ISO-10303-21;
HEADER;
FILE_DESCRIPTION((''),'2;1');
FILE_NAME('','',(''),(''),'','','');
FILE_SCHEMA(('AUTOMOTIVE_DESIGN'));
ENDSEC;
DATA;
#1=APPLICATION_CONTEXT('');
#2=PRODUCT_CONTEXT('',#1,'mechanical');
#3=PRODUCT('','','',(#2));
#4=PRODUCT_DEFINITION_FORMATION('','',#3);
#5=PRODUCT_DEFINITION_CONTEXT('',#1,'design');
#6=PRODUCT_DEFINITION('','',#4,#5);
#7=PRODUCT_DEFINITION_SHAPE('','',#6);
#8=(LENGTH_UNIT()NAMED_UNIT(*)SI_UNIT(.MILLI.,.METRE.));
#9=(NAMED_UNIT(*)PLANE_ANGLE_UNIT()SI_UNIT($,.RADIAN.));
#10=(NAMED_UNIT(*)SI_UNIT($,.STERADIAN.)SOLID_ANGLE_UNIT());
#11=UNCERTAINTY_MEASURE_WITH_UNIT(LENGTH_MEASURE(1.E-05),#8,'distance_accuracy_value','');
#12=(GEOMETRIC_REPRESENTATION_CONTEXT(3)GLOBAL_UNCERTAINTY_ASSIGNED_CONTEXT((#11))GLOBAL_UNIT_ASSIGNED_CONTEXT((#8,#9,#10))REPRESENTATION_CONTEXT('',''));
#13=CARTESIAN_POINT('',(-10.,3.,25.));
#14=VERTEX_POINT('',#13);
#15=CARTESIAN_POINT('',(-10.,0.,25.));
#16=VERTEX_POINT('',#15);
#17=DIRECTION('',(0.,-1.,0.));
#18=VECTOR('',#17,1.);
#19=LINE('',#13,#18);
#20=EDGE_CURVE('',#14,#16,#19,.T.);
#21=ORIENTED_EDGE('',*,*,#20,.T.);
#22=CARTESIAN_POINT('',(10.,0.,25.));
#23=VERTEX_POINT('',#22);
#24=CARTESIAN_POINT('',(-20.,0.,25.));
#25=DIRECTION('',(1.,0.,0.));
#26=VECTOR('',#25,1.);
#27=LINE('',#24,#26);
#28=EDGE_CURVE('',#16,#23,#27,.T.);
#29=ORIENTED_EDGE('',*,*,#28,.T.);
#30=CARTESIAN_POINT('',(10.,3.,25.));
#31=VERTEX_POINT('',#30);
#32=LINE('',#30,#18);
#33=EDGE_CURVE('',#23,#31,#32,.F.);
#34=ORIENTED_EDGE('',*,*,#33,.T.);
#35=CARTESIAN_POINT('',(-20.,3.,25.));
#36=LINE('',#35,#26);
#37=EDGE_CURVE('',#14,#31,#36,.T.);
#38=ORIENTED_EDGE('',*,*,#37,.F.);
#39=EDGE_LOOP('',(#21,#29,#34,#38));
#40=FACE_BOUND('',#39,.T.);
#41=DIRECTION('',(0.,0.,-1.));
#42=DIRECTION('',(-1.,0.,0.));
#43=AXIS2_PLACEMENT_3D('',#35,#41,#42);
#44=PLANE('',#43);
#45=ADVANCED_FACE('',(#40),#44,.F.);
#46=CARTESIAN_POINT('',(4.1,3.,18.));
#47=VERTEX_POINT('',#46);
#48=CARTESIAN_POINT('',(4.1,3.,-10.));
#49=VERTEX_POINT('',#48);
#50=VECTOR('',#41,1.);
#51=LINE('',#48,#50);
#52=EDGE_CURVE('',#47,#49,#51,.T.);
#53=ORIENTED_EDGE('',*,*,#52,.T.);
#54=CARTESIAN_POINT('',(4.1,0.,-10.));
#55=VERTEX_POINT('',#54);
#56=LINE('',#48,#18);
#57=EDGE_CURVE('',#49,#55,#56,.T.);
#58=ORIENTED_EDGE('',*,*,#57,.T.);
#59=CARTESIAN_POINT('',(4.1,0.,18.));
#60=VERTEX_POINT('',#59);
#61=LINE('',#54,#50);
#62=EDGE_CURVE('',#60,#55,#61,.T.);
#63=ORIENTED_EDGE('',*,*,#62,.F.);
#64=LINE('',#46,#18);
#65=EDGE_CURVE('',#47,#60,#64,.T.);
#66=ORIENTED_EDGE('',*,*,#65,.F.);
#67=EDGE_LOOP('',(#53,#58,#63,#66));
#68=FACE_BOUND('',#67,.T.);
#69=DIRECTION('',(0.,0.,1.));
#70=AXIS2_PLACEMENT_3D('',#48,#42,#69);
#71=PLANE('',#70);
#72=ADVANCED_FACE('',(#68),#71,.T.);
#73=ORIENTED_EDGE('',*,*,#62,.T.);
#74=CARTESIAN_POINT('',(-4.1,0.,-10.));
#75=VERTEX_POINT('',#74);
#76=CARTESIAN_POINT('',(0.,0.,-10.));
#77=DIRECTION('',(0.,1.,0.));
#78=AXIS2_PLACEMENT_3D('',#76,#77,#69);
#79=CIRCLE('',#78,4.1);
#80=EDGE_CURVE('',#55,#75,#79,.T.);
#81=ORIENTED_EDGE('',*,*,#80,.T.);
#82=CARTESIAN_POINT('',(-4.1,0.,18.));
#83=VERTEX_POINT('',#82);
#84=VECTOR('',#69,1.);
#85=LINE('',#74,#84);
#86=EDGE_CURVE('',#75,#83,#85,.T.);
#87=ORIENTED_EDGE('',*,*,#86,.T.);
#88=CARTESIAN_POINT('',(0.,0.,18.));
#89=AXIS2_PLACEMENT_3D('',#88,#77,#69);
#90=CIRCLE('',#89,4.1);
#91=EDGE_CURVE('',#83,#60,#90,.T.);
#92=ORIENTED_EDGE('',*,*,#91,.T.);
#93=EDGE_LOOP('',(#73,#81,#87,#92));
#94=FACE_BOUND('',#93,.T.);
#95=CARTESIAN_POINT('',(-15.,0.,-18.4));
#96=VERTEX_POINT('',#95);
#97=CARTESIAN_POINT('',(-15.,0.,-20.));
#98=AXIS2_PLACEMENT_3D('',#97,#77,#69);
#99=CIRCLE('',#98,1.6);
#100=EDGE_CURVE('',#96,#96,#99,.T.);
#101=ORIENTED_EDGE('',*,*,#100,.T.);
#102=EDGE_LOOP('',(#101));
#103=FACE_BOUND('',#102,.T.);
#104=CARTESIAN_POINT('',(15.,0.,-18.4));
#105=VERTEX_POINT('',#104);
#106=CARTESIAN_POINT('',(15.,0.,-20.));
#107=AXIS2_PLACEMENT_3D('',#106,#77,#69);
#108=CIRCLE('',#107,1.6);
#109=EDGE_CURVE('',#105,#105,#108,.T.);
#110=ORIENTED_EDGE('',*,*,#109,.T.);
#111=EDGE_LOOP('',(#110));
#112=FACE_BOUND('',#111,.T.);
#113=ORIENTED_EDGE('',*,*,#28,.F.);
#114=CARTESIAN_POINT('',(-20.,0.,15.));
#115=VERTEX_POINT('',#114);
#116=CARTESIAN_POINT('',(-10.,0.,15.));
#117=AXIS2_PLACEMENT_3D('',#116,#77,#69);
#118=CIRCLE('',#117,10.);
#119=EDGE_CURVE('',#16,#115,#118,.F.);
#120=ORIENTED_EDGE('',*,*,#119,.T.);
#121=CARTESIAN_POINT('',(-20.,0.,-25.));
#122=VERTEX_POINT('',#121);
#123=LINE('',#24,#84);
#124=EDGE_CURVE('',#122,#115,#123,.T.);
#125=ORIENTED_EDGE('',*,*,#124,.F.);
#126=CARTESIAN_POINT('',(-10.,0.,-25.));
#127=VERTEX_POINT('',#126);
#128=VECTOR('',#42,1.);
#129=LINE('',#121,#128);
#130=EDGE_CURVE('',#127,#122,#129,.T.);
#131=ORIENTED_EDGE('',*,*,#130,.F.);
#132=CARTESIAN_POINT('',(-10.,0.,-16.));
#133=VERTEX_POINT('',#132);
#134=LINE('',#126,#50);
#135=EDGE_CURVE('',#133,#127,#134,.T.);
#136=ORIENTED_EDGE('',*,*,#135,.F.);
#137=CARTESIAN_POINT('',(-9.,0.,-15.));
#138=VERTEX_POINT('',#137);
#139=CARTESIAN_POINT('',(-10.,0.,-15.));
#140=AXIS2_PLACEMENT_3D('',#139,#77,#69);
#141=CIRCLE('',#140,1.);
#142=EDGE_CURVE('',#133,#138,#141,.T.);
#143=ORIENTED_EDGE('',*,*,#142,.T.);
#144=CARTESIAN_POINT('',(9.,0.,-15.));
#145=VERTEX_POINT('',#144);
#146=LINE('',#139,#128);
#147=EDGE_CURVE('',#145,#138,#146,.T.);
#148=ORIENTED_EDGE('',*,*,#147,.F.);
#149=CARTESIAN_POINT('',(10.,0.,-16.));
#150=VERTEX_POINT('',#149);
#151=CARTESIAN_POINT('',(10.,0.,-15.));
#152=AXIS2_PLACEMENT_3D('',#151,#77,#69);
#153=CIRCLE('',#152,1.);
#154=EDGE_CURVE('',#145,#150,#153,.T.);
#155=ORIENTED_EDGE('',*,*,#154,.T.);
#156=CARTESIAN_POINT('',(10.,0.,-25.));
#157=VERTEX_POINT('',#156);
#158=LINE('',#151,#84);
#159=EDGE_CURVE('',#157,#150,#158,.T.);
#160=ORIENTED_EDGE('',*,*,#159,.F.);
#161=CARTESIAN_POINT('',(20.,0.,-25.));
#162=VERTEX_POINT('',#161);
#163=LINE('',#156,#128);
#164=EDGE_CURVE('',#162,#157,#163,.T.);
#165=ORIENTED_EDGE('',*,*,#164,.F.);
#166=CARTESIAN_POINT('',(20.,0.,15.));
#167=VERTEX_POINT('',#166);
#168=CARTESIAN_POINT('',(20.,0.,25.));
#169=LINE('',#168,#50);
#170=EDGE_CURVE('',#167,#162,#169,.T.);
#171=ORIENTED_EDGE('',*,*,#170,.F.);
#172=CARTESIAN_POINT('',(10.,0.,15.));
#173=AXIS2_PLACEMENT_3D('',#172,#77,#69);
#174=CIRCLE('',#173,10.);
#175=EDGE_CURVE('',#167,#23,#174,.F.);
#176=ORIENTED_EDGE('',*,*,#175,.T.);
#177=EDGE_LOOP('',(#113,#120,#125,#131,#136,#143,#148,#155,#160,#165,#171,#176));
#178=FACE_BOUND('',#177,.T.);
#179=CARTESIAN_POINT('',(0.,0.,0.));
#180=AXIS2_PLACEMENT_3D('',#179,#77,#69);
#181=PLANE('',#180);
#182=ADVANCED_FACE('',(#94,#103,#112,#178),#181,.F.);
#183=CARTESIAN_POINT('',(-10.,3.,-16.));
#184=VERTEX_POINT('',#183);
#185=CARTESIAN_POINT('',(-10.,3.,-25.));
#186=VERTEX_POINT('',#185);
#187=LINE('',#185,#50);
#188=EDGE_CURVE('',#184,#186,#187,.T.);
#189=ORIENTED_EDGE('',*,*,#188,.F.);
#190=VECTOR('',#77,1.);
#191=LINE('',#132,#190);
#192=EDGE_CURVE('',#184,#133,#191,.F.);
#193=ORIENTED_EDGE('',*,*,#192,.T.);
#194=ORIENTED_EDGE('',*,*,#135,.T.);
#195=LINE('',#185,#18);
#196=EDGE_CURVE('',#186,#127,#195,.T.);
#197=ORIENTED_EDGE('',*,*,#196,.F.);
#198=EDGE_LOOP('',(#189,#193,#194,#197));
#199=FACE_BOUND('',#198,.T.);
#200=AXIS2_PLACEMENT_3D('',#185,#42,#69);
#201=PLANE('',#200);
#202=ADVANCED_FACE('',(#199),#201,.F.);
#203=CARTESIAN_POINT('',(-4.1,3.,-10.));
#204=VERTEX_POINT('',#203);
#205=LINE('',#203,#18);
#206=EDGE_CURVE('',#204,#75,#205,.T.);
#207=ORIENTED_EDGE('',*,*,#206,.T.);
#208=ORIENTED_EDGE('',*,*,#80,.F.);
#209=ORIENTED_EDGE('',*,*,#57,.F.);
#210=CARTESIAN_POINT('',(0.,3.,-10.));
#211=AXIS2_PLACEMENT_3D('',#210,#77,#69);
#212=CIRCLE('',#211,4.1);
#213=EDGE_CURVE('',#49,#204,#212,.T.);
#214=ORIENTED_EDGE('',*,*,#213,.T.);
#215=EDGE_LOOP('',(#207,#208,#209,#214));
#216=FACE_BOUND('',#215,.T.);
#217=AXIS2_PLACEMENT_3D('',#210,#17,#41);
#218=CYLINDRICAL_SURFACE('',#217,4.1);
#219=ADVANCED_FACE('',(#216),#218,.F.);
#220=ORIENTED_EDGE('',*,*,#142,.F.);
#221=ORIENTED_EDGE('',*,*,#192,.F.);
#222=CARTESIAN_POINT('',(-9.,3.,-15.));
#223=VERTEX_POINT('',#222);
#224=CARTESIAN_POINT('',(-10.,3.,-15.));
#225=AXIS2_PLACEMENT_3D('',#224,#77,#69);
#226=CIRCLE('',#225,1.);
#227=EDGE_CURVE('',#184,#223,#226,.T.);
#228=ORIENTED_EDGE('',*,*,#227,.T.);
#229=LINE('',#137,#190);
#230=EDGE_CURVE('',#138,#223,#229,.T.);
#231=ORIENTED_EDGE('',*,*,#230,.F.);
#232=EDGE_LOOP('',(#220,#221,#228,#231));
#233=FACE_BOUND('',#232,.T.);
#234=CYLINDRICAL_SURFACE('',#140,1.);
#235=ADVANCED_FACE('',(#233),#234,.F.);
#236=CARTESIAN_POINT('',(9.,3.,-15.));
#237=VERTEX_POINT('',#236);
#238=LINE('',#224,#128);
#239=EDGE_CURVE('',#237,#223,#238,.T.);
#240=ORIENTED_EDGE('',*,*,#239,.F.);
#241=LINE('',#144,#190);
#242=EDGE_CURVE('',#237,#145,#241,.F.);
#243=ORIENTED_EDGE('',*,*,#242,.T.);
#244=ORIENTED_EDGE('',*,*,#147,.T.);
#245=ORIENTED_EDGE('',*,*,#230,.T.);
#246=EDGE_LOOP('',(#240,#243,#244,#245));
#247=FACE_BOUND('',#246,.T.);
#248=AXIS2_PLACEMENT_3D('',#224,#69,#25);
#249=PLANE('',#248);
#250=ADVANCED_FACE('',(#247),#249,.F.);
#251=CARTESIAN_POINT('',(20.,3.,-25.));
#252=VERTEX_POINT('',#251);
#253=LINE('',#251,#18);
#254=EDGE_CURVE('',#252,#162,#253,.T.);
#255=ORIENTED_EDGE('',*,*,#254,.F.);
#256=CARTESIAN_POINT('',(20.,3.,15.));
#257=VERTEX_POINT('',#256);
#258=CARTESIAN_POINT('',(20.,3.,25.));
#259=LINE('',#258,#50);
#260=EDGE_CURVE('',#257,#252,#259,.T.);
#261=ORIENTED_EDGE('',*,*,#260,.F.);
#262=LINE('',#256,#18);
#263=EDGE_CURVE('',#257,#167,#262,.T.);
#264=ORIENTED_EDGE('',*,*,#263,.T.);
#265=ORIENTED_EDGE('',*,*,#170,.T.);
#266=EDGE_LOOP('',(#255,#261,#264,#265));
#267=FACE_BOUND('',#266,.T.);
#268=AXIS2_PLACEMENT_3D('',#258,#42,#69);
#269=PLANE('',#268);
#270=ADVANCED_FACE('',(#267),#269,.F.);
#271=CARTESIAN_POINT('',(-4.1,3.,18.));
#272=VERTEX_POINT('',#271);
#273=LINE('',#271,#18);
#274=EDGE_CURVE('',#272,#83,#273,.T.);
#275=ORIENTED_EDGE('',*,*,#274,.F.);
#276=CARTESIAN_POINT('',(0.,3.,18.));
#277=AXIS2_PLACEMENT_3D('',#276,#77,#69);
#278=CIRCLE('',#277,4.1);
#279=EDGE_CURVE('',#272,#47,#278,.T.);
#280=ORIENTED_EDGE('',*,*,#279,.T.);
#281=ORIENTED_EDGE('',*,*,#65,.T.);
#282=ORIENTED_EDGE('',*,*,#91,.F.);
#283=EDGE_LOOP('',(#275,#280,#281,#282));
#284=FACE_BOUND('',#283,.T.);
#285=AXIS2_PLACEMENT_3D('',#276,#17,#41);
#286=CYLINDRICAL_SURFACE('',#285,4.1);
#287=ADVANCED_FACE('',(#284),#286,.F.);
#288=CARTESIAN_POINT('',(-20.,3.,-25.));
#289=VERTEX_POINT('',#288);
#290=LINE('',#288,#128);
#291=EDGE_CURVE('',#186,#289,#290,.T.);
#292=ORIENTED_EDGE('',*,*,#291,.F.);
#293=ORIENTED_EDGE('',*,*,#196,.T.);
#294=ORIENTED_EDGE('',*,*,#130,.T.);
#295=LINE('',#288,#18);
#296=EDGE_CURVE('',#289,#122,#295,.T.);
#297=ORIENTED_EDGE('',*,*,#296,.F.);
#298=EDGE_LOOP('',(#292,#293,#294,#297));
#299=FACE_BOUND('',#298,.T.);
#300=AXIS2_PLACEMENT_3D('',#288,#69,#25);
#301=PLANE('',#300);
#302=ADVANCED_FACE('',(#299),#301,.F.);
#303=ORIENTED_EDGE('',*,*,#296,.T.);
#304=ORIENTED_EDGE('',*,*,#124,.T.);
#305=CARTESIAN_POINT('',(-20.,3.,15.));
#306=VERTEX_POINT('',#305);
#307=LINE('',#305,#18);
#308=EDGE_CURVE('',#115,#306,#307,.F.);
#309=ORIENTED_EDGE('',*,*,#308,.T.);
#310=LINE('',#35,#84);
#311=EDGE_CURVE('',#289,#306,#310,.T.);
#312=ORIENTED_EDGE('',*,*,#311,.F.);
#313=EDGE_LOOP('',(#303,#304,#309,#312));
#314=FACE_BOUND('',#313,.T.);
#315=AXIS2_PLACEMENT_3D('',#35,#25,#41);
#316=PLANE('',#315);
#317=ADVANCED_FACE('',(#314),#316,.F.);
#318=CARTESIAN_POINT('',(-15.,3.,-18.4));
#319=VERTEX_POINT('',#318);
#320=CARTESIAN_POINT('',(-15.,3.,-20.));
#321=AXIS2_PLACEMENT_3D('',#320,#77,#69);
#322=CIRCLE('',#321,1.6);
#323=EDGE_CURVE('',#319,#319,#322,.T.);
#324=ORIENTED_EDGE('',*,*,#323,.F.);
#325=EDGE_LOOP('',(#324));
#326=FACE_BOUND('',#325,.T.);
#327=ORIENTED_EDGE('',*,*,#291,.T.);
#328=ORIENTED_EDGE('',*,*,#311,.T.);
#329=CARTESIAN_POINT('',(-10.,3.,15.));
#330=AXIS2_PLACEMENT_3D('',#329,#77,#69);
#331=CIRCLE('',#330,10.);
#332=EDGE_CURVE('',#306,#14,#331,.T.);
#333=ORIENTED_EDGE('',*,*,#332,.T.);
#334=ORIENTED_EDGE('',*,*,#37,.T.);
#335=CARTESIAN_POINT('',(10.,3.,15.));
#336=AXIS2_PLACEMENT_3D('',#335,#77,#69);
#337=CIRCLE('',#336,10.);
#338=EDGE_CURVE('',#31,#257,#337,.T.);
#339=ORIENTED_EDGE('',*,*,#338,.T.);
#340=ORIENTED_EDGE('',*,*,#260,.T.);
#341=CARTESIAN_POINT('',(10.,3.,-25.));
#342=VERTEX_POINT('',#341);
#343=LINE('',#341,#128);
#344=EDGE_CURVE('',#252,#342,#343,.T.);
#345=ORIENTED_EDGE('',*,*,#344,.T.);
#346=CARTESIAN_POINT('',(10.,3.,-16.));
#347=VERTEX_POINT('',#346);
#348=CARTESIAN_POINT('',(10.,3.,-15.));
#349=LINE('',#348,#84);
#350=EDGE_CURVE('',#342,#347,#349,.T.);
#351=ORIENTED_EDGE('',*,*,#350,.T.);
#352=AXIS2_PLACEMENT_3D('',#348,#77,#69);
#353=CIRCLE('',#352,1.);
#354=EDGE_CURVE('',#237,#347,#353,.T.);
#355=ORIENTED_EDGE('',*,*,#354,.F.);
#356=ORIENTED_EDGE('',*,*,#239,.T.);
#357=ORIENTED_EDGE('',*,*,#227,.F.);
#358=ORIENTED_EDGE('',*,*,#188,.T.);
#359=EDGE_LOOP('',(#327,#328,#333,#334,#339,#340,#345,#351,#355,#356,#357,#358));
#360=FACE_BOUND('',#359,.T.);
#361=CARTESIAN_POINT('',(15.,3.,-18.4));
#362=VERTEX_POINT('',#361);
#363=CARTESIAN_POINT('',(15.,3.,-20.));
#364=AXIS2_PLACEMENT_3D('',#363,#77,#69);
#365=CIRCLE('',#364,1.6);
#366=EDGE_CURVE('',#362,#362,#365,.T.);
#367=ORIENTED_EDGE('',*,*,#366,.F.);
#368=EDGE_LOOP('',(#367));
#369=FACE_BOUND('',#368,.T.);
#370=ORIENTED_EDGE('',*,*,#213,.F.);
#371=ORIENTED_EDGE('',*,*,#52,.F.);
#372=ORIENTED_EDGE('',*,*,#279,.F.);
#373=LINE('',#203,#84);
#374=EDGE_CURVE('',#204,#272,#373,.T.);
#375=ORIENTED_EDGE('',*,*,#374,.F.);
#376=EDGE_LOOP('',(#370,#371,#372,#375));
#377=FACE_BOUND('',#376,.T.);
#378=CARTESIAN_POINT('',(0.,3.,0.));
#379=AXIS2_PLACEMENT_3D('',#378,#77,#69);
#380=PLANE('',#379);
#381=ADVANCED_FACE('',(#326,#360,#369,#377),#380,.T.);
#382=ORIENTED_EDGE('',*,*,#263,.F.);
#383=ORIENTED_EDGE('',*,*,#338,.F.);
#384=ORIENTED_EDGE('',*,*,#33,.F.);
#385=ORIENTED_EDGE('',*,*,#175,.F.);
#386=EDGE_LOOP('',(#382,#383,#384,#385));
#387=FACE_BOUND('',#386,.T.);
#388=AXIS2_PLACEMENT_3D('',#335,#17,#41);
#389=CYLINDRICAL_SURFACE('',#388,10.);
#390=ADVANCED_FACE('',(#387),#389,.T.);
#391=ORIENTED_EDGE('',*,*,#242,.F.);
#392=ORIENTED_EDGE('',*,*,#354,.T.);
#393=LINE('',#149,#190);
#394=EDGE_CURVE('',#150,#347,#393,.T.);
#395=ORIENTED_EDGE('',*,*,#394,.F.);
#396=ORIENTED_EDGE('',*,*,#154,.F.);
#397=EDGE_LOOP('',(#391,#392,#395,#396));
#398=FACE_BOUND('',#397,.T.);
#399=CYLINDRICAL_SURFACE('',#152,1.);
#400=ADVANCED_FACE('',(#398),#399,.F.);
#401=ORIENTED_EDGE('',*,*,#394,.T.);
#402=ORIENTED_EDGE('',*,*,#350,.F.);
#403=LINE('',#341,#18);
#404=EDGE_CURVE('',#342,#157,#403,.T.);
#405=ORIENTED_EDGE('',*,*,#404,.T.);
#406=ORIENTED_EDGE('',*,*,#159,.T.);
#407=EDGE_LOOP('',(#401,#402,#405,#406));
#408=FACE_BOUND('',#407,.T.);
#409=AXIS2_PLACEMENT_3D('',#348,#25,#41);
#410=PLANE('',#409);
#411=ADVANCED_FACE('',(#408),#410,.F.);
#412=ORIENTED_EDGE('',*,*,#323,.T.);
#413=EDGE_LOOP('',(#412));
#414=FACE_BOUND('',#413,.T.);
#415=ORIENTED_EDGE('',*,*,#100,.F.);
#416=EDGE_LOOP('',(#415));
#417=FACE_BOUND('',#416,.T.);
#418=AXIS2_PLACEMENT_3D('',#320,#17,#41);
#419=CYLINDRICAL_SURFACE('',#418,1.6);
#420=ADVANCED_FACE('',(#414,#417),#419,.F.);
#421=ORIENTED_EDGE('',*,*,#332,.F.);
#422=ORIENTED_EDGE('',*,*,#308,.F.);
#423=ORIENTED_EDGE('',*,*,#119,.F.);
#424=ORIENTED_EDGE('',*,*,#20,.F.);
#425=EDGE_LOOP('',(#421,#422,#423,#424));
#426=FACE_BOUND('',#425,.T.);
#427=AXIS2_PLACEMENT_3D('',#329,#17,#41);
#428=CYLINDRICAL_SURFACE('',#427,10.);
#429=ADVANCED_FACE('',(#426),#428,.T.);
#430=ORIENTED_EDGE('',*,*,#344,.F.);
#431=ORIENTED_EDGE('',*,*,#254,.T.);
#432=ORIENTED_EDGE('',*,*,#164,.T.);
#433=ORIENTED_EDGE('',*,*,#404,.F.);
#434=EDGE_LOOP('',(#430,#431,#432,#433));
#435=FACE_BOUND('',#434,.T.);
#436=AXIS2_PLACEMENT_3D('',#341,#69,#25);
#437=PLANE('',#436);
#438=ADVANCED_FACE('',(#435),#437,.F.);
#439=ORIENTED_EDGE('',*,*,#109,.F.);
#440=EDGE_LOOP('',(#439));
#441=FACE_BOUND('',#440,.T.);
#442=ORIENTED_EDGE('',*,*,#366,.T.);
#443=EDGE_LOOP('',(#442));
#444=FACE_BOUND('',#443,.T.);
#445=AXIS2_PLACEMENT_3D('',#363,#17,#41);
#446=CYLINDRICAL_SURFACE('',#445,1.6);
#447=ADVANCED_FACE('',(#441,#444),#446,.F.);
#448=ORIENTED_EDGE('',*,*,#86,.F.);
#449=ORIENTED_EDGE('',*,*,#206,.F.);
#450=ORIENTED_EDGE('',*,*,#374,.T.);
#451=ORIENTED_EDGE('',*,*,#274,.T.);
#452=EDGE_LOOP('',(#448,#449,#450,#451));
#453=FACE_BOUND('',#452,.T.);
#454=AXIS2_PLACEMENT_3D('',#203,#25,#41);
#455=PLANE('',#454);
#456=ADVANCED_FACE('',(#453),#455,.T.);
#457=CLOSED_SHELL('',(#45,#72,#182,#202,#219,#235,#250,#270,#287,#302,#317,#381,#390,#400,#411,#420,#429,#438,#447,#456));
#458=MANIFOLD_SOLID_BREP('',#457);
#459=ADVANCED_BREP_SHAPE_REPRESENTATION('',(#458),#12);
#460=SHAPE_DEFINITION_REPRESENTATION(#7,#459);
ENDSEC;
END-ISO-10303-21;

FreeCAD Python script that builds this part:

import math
import FreeCAD as App
import Part
import Sketcher
from FreeCAD import Vector
Q = App.Units.Quantity


def edges_at(feature, points):
    """Names of the edges that pass closest to the given points."""
    edges = feature.Shape.Edges
    near = lambda p: min(range(len(edges)), key=lambda i: edges[i].distToShape(Part.Vertex(*p))[0])
    return sorted({f"Edge{near(p) + 1}" for p in points})


def add_polygon(sketch, points):
    """Adds a closed chain of lines whose ends are joined by coincident constraints."""
    first, n = sketch.GeometryCount, len(points)
    for a, b in zip(points, points[1:] + points[:1]):
        sketch.addGeometry(Part.LineSegment(App.Vector(*a, 0), App.Vector(*b, 0)), False)
    for i in range(n):
        sketch.addConstraint(Sketcher.Constraint("Coincident", first + i, 2, first + (i + 1) % n, 1))

doc = App.newDocument("Part")
body = doc.addObject("PartDesign::Body", "Body")

sketch1 = body.newObject("Sketcher::SketchObject", "Sketch")
sketch1.AttachmentSupport = (doc.getObject("XZ_Plane"), [""])
sketch1.MapMode = "FlatFace"
add_polygon(sketch1, [(-10, -15), (-10, -25), (-20, -25), (-20, 25), (20, 25), (20, -25), (10, -25), (10, -15)])
sketch1.addGeometry(Part.LineSegment(Vector(4.1, -10, 0), Vector(4.1, 18, 0)), False)
sketch1.addGeometry(Part.ArcOfCircle(Part.Circle(Vector(0, 18, 0), Vector(0, 0, 1), 4.1), math.radians(0), math.radians(180)), False)
sketch1.addGeometry(Part.LineSegment(Vector(-4.1, 18, 0), Vector(-4.1, -10, 0)), False)
sketch1.addGeometry(Part.ArcOfCircle(Part.Circle(Vector(0, -10, 0), Vector(0, 0, 1), 4.1), math.radians(180), math.radians(360)), False)
sketch1.addGeometry(Part.Circle(Vector(15, -20, 0), Vector(0, 0, 1), 1.6), False)
sketch1.addGeometry(Part.Circle(Vector(-15, -20, 0), Vector(0, 0, 1), 1.6), False)
sketch1.addConstraint(Sketcher.Constraint("Tangent", 8, 2, 9, 1))
sketch1.addConstraint(Sketcher.Constraint("Tangent", 9, 2, 10, 1))
sketch1.addConstraint(Sketcher.Constraint("Tangent", 10, 2, 11, 1))
sketch1.addConstraint(Sketcher.Constraint("Tangent", 11, 2, 8, 1))
sketch1.addConstraint(Sketcher.Constraint("Vertical", 0))
sketch1.addConstraint(Sketcher.Constraint("Horizontal", 1))
sketch1.addConstraint(Sketcher.Constraint("Vertical", 2))
sketch1.addConstraint(Sketcher.Constraint("Horizontal", 3))
sketch1.addConstraint(Sketcher.Constraint("Vertical", 4))
sketch1.addConstraint(Sketcher.Constraint("Horizontal", 5))
sketch1.addConstraint(Sketcher.Constraint("Vertical", 6))
sketch1.addConstraint(Sketcher.Constraint("Horizontal", 7))
sketch1.addConstraint(Sketcher.Constraint("Vertical", 8))
sketch1.addConstraint(Sketcher.Constraint("Vertical", 10))
sketch1.addConstraint(Sketcher.Constraint("Equal", 12, 13))
sketch1.addConstraint(Sketcher.Constraint("Symmetric", 1, 2, 3, 2, -1, 1))
sketch1.addConstraint(Sketcher.Constraint("Symmetric", 12, 3, 13, 3, -2))
sketch1.addConstraint(Sketcher.Constraint("Symmetric", 0, 2, 5, 2, -2))
sketch1.addConstraint(Sketcher.Constraint("PointOnObject", 9, 3, -2))
sketch1.addConstraint(Sketcher.Constraint("Equal", 5, 0))
sketch1.addConstraint(Sketcher.Constraint("Diameter", 12, Q("3.2 mm")))
sketch1.addConstraint(Sketcher.Constraint("Radius", 9, Q("4.1 mm")))
sketch1.addConstraint(Sketcher.Constraint("DistanceX", 1, 2, 1, 1, Q("10 mm")))
sketch1.addConstraint(Sketcher.Constraint("DistanceX", 3, 1, 3, 2, Q("40 mm")))
sketch1.addConstraint(Sketcher.Constraint("DistanceY", 2, 1, 2, 2, Q("50 mm")))
sketch1.addConstraint(Sketcher.Constraint("DistanceY", 8, 1, 8, 2, Q("28 mm")))
sketch1.addConstraint(Sketcher.Constraint("DistanceY", -1, 1, 9, 3, Q("18 mm")))
sketch1.addConstraint(Sketcher.Constraint("DistanceX", -1, 1, 12, 3, Q("15 mm")))
sketch1.addConstraint(Sketcher.Constraint("DistanceY", 12, 3, -1, 1, Q("20 mm")))
pad1 = body.newObject("PartDesign::Pad", "Pad")
pad1.Profile = sketch1
pad1.Length = 3
pad1.Reversed = True
doc.recompute()

fillet = body.newObject("PartDesign::Fillet", "Fillet")
fillet.Base = (pad1, edges_at(pad1, [(20, 1.5, 25), (-20, 1.5, 25)]))
fillet.Radius = 10

sketch2 = body.newObject("Sketcher::SketchObject", "Sketch001")
sketch2.AttachmentSupport = (doc.getObject("XZ_Plane"), [""])
sketch2.MapMode = "FlatFace"
sketch2.AttachmentOffset = App.Placement(Vector(0, 0, -3), App.Rotation())
sketch2.addGeometry(Part.Circle(Vector(-10, -15, 0), Vector(0, 0, 1), 1), False)
sketch2.addGeometry(Part.Circle(Vector(10, -15, 0), Vector(0, 0, 1), 1), False)
sketch2.addConstraint(Sketcher.Constraint("Equal", 0, 1))
sketch2.addConstraint(Sketcher.Constraint("Symmetric", 0, 3, 1, 3, -2))
sketch2.addConstraint(Sketcher.Constraint("Diameter", 0, Q("2 mm")))
sketch2.addConstraint(Sketcher.Constraint("DistanceX", 0, 3, -1, 1, Q("10 mm")))
sketch2.addConstraint(Sketcher.Constraint("DistanceY", 0, 3, -1, 1, Q("15 mm")))
pocket1 = body.newObject("PartDesign::Pocket", "Pocket")
pocket1.Profile = sketch2
pocket1.Length = 3
pocket1.Reversed = True

doc.recompute()
